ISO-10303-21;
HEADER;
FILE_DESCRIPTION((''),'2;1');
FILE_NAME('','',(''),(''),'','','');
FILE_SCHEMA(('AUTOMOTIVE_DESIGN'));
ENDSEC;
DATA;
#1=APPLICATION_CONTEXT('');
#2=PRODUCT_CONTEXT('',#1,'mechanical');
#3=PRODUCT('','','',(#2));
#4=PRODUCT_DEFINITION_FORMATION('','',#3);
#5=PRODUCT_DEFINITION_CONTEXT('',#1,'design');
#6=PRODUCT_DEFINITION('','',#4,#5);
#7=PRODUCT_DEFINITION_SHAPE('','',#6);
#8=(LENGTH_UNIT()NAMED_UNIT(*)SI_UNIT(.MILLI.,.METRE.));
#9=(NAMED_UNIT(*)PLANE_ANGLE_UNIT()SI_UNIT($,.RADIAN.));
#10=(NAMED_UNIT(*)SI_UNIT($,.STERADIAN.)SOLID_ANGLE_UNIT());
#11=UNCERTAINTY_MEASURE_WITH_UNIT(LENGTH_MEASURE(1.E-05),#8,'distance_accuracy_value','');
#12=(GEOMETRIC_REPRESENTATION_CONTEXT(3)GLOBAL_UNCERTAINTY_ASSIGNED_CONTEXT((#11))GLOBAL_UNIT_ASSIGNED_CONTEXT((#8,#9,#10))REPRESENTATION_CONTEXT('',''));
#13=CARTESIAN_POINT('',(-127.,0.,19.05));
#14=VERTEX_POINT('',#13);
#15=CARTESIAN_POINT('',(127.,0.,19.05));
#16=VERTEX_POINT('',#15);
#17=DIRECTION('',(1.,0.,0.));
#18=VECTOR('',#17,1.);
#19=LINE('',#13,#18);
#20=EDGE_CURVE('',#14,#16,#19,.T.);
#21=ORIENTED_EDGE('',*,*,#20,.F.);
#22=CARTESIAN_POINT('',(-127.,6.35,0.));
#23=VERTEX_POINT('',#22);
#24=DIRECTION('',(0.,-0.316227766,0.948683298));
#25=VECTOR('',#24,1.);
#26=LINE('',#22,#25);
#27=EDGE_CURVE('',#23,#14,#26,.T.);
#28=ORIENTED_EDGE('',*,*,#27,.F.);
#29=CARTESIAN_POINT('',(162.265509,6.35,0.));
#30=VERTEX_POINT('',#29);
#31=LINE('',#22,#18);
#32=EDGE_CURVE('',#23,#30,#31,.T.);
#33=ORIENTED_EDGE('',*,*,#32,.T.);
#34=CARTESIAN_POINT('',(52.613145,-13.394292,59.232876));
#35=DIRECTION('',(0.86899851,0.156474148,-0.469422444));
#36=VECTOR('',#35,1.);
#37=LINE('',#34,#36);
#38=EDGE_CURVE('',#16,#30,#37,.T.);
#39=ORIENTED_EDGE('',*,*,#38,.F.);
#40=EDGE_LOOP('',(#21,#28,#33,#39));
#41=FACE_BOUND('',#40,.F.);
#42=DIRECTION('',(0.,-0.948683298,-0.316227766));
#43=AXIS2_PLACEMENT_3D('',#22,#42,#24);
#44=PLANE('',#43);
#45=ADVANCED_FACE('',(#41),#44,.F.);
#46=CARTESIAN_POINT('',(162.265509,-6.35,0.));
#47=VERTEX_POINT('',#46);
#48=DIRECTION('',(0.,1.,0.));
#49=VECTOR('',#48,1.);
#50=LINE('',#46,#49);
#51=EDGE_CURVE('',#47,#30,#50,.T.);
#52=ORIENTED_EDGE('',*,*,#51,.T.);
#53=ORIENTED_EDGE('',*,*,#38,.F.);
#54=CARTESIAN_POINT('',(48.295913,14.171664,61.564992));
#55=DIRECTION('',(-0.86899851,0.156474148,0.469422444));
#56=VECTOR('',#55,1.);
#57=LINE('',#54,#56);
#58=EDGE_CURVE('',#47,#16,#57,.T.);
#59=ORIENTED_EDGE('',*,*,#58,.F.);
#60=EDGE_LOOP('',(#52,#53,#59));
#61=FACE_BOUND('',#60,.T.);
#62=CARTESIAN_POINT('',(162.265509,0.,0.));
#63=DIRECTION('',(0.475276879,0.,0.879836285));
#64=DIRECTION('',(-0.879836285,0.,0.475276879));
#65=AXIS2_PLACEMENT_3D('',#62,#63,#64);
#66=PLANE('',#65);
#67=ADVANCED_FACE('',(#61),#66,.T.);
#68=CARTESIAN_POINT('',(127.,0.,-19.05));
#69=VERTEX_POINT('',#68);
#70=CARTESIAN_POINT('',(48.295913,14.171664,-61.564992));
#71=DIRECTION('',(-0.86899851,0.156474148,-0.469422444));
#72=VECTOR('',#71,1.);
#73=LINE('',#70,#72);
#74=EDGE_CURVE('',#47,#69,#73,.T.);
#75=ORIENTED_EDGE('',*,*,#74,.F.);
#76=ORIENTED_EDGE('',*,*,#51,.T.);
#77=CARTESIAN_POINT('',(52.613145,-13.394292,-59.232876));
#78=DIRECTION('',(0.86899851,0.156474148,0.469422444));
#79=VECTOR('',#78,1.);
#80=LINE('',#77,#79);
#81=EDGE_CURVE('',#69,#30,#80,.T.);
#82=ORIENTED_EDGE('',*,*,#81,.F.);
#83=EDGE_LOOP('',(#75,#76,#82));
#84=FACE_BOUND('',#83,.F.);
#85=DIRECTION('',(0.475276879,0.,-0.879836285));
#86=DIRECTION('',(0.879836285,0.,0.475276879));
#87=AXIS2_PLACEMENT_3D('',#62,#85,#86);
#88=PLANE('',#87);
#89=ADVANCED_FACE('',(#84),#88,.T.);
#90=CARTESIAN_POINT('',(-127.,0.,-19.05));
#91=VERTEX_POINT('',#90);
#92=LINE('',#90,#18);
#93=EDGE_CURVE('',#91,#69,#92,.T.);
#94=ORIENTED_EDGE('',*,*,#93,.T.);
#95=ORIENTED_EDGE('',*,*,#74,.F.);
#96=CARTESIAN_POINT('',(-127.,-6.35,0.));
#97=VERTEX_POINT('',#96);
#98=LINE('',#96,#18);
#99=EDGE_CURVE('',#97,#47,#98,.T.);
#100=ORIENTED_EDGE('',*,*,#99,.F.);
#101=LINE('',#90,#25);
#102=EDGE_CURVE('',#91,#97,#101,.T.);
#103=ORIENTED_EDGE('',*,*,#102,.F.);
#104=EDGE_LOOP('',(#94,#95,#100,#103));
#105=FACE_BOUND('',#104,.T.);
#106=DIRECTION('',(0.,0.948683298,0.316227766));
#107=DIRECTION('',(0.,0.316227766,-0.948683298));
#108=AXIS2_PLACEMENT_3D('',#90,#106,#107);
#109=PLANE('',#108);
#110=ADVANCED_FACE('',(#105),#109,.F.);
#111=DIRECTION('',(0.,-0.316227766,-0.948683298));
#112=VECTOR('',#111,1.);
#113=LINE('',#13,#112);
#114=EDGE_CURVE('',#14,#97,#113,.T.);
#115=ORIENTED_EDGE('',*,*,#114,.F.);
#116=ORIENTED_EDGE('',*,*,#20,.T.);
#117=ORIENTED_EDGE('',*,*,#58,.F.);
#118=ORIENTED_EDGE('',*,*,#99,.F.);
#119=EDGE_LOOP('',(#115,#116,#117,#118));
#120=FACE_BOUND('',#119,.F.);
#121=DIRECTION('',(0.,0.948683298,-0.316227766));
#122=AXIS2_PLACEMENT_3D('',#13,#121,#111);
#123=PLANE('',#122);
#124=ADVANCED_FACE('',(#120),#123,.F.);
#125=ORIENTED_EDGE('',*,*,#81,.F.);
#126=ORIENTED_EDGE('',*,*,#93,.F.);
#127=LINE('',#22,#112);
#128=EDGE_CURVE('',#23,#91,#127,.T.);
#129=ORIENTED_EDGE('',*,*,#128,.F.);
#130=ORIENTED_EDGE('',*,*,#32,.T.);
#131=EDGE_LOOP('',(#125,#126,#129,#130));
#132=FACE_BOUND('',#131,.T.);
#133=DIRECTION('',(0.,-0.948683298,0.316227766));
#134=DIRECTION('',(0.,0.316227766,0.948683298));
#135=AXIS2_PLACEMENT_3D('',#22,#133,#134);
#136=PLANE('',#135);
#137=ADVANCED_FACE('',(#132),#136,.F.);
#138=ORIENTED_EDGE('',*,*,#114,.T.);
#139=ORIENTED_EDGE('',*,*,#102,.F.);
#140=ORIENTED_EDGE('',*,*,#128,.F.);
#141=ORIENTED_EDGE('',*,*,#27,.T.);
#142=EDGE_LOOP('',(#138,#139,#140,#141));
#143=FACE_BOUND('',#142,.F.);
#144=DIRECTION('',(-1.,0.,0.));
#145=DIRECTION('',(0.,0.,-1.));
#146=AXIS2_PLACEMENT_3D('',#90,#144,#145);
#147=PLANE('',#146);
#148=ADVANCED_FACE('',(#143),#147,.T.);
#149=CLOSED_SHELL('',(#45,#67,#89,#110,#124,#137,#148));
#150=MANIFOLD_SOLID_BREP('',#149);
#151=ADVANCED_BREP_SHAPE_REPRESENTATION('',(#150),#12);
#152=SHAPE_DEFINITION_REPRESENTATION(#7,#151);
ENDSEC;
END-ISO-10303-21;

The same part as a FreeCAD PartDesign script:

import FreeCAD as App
import Part
import Sketcher

V = App.Vector
Q = App.Units.Quantity


def add_polygon(sketch, points):
    """Adds a closed chain of lines whose ends are joined by coincident constraints."""
    first, n = sketch.GeometryCount, len(points)
    for a, b in zip(points, points[1:] + points[:1]):
        sketch.addGeometry(Part.LineSegment(App.Vector(*a, 0), App.Vector(*b, 0)), False)
    for i in range(n):
        sketch.addConstraint(Sketcher.Constraint("Coincident", first + i, 2, first + (i + 1) % n, 1))

doc = App.newDocument("Part")
params = doc.addObject("Spreadsheet::Sheet", "Params")
for row, (alias, value) in enumerate([
    ("sketch1_width", "10 in"),
    ("sketch1_height", "1.5 in"),
    ("pad1_length", "0.5 in"),
    ("sketch2_width", "0.25 in"),
    ("sketch2_height", "0.75 in"),
    ("pocket1_length", "11.75 in"),
    ("sketch3_width", "0.5 in"),
    ("sketch3_height", "0.75 in"),
    ("pocket2_length", "12.76 in"),
], start=1):
    params.set(f"A{row}", alias)
    params.set(f"B{row}", "=" + value)
    params.setAlias(f"B{row}", alias)

body = doc.addObject("PartDesign::Body", "Body")

sketch1 = doc.addObject("Sketcher::SketchObject", "Sketch")
body.addObject(sketch1)
sketch1.AttachmentSupport = (doc.XZ_Plane, [""])
sketch1.MapMode = "FlatFace"
add_polygon(sketch1, [(-127, 19), (-127, -19), (127, -19), (162, 0), (127, 19)])
sketch1.addConstraint([
    Sketcher.Constraint("Vertical", 0),
    Sketcher.Constraint("Horizontal", 1),
    Sketcher.Constraint("Horizontal", 4),
    Sketcher.Constraint("Symmetric", 0, 2, 3, 2, -1, 1),
    Sketcher.Constraint("PointOnObject", 2, 2, -1),
    Sketcher.Constraint("Vertical", 1, 2, 3, 2),
    Sketcher.Constraint("DistanceX", 1, 1, 1, 2, Q("10 in")),
    Sketcher.Constraint("DistanceY", 0, 2, 0, 1, Q("1.5 in")),
    Sketcher.Constraint("Distance", 2, Q("40.081899 mm")),
])
sketch1.setExpression("Constraints[11]", "Params.sketch1_width")
sketch1.setExpression("Constraints[12]", "Params.sketch1_height")
pad1 = doc.addObject("PartDesign::Pad", "Pad")
body.addObject(pad1)
pad1.Profile = sketch1
pad1.setExpression("Length", "Params.pad1_length")
pad1.Midplane = True

sketch2 = doc.addObject("Sketcher::SketchObject", "Sketch001")
body.addObject(sketch2)
sketch2.AttachmentSupport = (doc.YZ_Plane, [""])
sketch2.MapMode = "FlatFace"
sketch2.AttachmentOffset = App.Placement(V(0, 0, -5 * 25.4), App.Rotation())
add_polygon(sketch2, [(6, 0), (0, 19), (6, 19)])
add_polygon(sketch2, [(0, 19), (-6, 0), (-6, 19)])
sketch2.addConstraint([
    Sketcher.Constraint("Horizontal", 1),
    Sketcher.Constraint("Vertical", 2),
    Sketcher.Constraint("Vertical", 4),
    Sketcher.Constraint("Horizontal", 5),
    Sketcher.Constraint("Coincident", 5, 2, 0, 2),
    Sketcher.Constraint("Symmetric", 2, 2, 3, 2, -1, 1),
    Sketcher.Constraint("PointOnObject", 0, 2, -2),
    Sketcher.Constraint("PointOnObject", 2, 2, -1),
    Sketcher.Constraint("DistanceX", 1, 1, 1, 2, Q("0.25 in")),
    Sketcher.Constraint("DistanceY", 2, 2, 2, 1, Q("0.75 in")),
])
sketch2.setExpression("Constraints[14]", "Params.sketch2_width")
sketch2.setExpression("Constraints[15]", "Params.sketch2_height")
pocket1 = doc.addObject("PartDesign::Pocket", "Pocket")
body.addObject(pocket1)
pocket1.Profile = sketch2
pocket1.setExpression("Length", "Params.pocket1_length")
pocket1.Reversed = True

sketch3 = doc.addObject("Sketcher::SketchObject", "Sketch002")
body.addObject(sketch3)
sketch3.AttachmentSupport = (doc.YZ_Plane, [""])
sketch3.MapMode = "FlatFace"
sketch3.AttachmentOffset = App.Placement(V(0, 0, -5 * 25.4), App.Rotation())
add_polygon(sketch3, [(6, 0), (6, -19), (-6, -19), (-6, 0)])
sketch3.addConstraint([
    Sketcher.Constraint("Vertical", 0),
    Sketcher.Constraint("Horizontal", 1),
    Sketcher.Constraint("Vertical", 2),
    Sketcher.Constraint("Horizontal", 3),
    Sketcher.Constraint("Symmetric", 2, 2, 3, 2, -1, 1),
    Sketcher.Constraint("DistanceX", 1, 2, 1, 1, Q("0.5 in")),
    Sketcher.Constraint("DistanceY", 0, 2, 0, 1, Q("0.75 in")),
])
sketch3.setExpression("Constraints[9]", "Params.sketch3_width")
sketch3.setExpression("Constraints[10]", "Params.sketch3_height")
pocket2 = doc.addObject("PartDesign::Pocket", "Pocket001")
body.addObject(pocket2)
pocket2.Profile = sketch3
pocket2.setExpression("Length", "Params.pocket2_length")
pocket2.Reversed = True
body2 = doc.addObject("PartDesign::Body", "Body001")
doc.recompute()

body2.BaseFeature = body
doc.recompute()

mirroring = doc.addObject("Part::Mirroring", "Mirroring")
mirroring.Source = body
mirroring.Base = V(0, 0, 0)
mirroring.Normal = V(0, 0, 1)
body3 = doc.addObject("PartDesign::Body", "Body002")
body3.BaseFeature = mirroring
boolean = doc.addObject("PartDesign::Boolean", "Boolean")
body2.addObject(boolean)
boolean.Type = "Fuse"
boolean.addObjects([body3])
doc.recompute()
mirroring.Visibility = False

doc.recompute()
